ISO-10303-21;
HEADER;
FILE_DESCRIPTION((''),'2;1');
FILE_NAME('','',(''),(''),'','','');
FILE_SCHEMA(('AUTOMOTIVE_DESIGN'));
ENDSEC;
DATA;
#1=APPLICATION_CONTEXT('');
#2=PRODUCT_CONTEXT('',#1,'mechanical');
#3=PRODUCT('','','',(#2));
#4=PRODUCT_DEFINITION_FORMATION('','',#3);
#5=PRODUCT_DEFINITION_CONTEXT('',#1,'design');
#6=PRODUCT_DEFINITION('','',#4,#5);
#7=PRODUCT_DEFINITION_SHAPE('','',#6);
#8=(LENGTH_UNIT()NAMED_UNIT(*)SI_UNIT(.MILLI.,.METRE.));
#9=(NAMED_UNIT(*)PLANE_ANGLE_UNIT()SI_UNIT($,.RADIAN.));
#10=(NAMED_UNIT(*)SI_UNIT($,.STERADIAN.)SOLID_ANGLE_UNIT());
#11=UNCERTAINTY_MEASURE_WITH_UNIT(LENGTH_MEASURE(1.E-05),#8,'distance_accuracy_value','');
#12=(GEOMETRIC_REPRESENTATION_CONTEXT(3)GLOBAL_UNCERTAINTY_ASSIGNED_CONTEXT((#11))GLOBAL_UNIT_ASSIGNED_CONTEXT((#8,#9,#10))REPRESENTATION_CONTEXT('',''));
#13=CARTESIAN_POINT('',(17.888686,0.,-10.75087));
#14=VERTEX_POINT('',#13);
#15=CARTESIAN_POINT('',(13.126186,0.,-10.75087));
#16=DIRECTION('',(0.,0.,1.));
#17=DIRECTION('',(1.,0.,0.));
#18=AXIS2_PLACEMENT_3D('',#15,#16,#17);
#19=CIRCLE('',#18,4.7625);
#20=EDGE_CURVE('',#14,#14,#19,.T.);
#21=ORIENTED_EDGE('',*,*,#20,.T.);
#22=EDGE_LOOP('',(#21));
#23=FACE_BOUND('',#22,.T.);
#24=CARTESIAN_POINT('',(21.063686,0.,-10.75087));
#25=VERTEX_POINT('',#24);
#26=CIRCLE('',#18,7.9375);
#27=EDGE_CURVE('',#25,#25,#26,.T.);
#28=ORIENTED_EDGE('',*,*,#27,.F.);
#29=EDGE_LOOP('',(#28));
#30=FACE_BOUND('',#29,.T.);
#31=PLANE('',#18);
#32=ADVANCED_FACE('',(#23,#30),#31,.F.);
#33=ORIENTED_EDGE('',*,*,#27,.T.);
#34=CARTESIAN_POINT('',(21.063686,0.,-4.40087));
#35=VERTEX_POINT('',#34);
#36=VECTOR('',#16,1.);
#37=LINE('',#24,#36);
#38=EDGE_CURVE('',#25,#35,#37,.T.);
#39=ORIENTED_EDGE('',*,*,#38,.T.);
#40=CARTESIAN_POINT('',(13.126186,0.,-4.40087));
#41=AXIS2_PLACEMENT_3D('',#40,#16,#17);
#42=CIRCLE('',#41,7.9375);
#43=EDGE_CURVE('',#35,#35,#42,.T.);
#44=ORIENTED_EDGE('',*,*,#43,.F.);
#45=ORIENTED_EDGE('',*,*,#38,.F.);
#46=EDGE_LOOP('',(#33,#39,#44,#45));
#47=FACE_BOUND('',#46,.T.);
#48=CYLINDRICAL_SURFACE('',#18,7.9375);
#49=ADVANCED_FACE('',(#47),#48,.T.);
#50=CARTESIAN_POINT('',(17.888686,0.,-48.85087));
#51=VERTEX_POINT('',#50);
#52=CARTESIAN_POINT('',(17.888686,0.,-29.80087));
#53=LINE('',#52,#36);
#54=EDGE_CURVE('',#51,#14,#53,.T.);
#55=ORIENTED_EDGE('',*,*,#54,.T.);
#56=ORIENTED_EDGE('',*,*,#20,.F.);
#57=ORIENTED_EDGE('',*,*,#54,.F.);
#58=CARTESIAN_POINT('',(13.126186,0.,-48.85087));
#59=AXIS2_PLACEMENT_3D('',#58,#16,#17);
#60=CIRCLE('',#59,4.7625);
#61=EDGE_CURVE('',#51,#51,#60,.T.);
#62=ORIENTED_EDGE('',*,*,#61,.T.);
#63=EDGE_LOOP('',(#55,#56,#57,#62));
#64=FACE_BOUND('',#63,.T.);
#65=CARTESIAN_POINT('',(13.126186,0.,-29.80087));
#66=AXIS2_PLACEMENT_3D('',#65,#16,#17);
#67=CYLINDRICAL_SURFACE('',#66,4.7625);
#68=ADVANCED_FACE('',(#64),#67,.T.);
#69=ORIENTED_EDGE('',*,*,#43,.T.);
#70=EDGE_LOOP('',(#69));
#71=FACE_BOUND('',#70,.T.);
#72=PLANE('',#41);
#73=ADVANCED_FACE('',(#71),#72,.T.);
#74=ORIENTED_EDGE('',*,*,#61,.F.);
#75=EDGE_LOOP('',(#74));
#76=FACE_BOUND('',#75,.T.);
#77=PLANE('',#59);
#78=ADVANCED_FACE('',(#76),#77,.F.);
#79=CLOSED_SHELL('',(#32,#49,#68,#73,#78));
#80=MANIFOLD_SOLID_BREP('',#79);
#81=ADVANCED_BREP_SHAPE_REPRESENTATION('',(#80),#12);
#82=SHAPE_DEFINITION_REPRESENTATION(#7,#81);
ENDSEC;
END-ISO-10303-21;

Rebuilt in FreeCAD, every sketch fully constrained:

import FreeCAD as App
import Part
import Sketcher
Q = App.Units.Quantity


def add_polygon(sketch, points):
    """Adds a closed chain of lines whose ends are joined by coincident constraints."""
    first, n = sketch.GeometryCount, len(points)
    for a, b in zip(points, points[1:] + points[:1]):
        sketch.addGeometry(Part.LineSegment(App.Vector(*a, 0), App.Vector(*b, 0)), False)
    for i in range(n):
        sketch.addConstraint(Sketcher.Constraint("Coincident", first + i, 2, first + (i + 1) % n, 1))

doc = App.newDocument("Part")
body = doc.addObject("PartDesign::Body", "Body")

sketch1 = body.newObject("Sketcher::SketchObject", "Sketch")
sketch1.AttachmentSupport = (doc.getObject("XZ_Plane"), [""])
sketch1.MapMode = "FlatFace"
add_polygon(sketch1, [(13.126186, -10.75087), (13.126186, -48.85087), (17.888686, -48.85087), (17.888686, -10.75087)])
sketch1.addGeometry(Part.LineSegment(App.Vector(13.126186, -48.85087, 0), App.Vector(13.126186, -10.75087, 0)), True)
sketch1.addConstraint([
    Sketcher.Constraint("Vertical", 0),
    Sketcher.Constraint("Horizontal", 1),
    Sketcher.Constraint("Vertical", 2),
    Sketcher.Constraint("Horizontal", 3),
    Sketcher.Constraint("Vertical", 4),
    Sketcher.Constraint("Coincident", 4, 1, 0, 2),
    Sketcher.Constraint("Horizontal", 2, 2, 4, 2),
    Sketcher.Constraint("DistanceY", 0, 2, 0, 1, Q("1.5 in")),
    Sketcher.Constraint("DistanceX", 1, 1, 1, 2, Q("0.1875 in")),
    Sketcher.Constraint("DistanceY", 0, 2, -1, 1, 48.85087),
    Sketcher.Constraint("DistanceX", -1, 1, 0, 2, 13.126186),
])
revolution = body.newObject("PartDesign::Revolution", "Revolution")
revolution.Profile = sketch1
revolution.ReferenceAxis = (sketch1, ["Axis0"])
revolution.Angle = 360

sketch2 = body.newObject("Sketcher::SketchObject", "Sketch001")
sketch2.AttachmentSupport = (doc.getObject("XZ_Plane"), [""])
sketch2.MapMode = "FlatFace"
add_polygon(sketch2, [(13.126186, -4.40087), (13.126186, -10.75087), (21.063686, -10.75087), (21.063686, -4.40087)])
sketch2.addGeometry(Part.LineSegment(App.Vector(13.126186, -10.75087, 0), App.Vector(13.126186, -4.40087, 0)), True)
sketch2.addConstraint([
    Sketcher.Constraint("Vertical", 0),
    Sketcher.Constraint("Horizontal", 1),
    Sketcher.Constraint("Vertical", 2),
    Sketcher.Constraint("Horizontal", 3),
    Sketcher.Constraint("Vertical", 4),
    Sketcher.Constraint("Coincident", 4, 1, 0, 2),
    Sketcher.Constraint("Horizontal", 2, 2, 4, 2),
    Sketcher.Constraint("DistanceY", 0, 2, 0, 1, Q("0.25 in")),
    Sketcher.Constraint("DistanceX", 1, 1, 1, 2, Q("0.3125 in")),
    Sketcher.Constraint("DistanceY", 0, 2, -1, 1, 10.75087),
    Sketcher.Constraint("DistanceX", -1, 1, 0, 2, 13.126186),
])
revolution2 = body.newObject("PartDesign::Revolution", "Revolution001")
revolution2.Profile = sketch2
revolution2.ReferenceAxis = (sketch2, ["Axis0"])
revolution2.Angle = 360

doc.recompute()
